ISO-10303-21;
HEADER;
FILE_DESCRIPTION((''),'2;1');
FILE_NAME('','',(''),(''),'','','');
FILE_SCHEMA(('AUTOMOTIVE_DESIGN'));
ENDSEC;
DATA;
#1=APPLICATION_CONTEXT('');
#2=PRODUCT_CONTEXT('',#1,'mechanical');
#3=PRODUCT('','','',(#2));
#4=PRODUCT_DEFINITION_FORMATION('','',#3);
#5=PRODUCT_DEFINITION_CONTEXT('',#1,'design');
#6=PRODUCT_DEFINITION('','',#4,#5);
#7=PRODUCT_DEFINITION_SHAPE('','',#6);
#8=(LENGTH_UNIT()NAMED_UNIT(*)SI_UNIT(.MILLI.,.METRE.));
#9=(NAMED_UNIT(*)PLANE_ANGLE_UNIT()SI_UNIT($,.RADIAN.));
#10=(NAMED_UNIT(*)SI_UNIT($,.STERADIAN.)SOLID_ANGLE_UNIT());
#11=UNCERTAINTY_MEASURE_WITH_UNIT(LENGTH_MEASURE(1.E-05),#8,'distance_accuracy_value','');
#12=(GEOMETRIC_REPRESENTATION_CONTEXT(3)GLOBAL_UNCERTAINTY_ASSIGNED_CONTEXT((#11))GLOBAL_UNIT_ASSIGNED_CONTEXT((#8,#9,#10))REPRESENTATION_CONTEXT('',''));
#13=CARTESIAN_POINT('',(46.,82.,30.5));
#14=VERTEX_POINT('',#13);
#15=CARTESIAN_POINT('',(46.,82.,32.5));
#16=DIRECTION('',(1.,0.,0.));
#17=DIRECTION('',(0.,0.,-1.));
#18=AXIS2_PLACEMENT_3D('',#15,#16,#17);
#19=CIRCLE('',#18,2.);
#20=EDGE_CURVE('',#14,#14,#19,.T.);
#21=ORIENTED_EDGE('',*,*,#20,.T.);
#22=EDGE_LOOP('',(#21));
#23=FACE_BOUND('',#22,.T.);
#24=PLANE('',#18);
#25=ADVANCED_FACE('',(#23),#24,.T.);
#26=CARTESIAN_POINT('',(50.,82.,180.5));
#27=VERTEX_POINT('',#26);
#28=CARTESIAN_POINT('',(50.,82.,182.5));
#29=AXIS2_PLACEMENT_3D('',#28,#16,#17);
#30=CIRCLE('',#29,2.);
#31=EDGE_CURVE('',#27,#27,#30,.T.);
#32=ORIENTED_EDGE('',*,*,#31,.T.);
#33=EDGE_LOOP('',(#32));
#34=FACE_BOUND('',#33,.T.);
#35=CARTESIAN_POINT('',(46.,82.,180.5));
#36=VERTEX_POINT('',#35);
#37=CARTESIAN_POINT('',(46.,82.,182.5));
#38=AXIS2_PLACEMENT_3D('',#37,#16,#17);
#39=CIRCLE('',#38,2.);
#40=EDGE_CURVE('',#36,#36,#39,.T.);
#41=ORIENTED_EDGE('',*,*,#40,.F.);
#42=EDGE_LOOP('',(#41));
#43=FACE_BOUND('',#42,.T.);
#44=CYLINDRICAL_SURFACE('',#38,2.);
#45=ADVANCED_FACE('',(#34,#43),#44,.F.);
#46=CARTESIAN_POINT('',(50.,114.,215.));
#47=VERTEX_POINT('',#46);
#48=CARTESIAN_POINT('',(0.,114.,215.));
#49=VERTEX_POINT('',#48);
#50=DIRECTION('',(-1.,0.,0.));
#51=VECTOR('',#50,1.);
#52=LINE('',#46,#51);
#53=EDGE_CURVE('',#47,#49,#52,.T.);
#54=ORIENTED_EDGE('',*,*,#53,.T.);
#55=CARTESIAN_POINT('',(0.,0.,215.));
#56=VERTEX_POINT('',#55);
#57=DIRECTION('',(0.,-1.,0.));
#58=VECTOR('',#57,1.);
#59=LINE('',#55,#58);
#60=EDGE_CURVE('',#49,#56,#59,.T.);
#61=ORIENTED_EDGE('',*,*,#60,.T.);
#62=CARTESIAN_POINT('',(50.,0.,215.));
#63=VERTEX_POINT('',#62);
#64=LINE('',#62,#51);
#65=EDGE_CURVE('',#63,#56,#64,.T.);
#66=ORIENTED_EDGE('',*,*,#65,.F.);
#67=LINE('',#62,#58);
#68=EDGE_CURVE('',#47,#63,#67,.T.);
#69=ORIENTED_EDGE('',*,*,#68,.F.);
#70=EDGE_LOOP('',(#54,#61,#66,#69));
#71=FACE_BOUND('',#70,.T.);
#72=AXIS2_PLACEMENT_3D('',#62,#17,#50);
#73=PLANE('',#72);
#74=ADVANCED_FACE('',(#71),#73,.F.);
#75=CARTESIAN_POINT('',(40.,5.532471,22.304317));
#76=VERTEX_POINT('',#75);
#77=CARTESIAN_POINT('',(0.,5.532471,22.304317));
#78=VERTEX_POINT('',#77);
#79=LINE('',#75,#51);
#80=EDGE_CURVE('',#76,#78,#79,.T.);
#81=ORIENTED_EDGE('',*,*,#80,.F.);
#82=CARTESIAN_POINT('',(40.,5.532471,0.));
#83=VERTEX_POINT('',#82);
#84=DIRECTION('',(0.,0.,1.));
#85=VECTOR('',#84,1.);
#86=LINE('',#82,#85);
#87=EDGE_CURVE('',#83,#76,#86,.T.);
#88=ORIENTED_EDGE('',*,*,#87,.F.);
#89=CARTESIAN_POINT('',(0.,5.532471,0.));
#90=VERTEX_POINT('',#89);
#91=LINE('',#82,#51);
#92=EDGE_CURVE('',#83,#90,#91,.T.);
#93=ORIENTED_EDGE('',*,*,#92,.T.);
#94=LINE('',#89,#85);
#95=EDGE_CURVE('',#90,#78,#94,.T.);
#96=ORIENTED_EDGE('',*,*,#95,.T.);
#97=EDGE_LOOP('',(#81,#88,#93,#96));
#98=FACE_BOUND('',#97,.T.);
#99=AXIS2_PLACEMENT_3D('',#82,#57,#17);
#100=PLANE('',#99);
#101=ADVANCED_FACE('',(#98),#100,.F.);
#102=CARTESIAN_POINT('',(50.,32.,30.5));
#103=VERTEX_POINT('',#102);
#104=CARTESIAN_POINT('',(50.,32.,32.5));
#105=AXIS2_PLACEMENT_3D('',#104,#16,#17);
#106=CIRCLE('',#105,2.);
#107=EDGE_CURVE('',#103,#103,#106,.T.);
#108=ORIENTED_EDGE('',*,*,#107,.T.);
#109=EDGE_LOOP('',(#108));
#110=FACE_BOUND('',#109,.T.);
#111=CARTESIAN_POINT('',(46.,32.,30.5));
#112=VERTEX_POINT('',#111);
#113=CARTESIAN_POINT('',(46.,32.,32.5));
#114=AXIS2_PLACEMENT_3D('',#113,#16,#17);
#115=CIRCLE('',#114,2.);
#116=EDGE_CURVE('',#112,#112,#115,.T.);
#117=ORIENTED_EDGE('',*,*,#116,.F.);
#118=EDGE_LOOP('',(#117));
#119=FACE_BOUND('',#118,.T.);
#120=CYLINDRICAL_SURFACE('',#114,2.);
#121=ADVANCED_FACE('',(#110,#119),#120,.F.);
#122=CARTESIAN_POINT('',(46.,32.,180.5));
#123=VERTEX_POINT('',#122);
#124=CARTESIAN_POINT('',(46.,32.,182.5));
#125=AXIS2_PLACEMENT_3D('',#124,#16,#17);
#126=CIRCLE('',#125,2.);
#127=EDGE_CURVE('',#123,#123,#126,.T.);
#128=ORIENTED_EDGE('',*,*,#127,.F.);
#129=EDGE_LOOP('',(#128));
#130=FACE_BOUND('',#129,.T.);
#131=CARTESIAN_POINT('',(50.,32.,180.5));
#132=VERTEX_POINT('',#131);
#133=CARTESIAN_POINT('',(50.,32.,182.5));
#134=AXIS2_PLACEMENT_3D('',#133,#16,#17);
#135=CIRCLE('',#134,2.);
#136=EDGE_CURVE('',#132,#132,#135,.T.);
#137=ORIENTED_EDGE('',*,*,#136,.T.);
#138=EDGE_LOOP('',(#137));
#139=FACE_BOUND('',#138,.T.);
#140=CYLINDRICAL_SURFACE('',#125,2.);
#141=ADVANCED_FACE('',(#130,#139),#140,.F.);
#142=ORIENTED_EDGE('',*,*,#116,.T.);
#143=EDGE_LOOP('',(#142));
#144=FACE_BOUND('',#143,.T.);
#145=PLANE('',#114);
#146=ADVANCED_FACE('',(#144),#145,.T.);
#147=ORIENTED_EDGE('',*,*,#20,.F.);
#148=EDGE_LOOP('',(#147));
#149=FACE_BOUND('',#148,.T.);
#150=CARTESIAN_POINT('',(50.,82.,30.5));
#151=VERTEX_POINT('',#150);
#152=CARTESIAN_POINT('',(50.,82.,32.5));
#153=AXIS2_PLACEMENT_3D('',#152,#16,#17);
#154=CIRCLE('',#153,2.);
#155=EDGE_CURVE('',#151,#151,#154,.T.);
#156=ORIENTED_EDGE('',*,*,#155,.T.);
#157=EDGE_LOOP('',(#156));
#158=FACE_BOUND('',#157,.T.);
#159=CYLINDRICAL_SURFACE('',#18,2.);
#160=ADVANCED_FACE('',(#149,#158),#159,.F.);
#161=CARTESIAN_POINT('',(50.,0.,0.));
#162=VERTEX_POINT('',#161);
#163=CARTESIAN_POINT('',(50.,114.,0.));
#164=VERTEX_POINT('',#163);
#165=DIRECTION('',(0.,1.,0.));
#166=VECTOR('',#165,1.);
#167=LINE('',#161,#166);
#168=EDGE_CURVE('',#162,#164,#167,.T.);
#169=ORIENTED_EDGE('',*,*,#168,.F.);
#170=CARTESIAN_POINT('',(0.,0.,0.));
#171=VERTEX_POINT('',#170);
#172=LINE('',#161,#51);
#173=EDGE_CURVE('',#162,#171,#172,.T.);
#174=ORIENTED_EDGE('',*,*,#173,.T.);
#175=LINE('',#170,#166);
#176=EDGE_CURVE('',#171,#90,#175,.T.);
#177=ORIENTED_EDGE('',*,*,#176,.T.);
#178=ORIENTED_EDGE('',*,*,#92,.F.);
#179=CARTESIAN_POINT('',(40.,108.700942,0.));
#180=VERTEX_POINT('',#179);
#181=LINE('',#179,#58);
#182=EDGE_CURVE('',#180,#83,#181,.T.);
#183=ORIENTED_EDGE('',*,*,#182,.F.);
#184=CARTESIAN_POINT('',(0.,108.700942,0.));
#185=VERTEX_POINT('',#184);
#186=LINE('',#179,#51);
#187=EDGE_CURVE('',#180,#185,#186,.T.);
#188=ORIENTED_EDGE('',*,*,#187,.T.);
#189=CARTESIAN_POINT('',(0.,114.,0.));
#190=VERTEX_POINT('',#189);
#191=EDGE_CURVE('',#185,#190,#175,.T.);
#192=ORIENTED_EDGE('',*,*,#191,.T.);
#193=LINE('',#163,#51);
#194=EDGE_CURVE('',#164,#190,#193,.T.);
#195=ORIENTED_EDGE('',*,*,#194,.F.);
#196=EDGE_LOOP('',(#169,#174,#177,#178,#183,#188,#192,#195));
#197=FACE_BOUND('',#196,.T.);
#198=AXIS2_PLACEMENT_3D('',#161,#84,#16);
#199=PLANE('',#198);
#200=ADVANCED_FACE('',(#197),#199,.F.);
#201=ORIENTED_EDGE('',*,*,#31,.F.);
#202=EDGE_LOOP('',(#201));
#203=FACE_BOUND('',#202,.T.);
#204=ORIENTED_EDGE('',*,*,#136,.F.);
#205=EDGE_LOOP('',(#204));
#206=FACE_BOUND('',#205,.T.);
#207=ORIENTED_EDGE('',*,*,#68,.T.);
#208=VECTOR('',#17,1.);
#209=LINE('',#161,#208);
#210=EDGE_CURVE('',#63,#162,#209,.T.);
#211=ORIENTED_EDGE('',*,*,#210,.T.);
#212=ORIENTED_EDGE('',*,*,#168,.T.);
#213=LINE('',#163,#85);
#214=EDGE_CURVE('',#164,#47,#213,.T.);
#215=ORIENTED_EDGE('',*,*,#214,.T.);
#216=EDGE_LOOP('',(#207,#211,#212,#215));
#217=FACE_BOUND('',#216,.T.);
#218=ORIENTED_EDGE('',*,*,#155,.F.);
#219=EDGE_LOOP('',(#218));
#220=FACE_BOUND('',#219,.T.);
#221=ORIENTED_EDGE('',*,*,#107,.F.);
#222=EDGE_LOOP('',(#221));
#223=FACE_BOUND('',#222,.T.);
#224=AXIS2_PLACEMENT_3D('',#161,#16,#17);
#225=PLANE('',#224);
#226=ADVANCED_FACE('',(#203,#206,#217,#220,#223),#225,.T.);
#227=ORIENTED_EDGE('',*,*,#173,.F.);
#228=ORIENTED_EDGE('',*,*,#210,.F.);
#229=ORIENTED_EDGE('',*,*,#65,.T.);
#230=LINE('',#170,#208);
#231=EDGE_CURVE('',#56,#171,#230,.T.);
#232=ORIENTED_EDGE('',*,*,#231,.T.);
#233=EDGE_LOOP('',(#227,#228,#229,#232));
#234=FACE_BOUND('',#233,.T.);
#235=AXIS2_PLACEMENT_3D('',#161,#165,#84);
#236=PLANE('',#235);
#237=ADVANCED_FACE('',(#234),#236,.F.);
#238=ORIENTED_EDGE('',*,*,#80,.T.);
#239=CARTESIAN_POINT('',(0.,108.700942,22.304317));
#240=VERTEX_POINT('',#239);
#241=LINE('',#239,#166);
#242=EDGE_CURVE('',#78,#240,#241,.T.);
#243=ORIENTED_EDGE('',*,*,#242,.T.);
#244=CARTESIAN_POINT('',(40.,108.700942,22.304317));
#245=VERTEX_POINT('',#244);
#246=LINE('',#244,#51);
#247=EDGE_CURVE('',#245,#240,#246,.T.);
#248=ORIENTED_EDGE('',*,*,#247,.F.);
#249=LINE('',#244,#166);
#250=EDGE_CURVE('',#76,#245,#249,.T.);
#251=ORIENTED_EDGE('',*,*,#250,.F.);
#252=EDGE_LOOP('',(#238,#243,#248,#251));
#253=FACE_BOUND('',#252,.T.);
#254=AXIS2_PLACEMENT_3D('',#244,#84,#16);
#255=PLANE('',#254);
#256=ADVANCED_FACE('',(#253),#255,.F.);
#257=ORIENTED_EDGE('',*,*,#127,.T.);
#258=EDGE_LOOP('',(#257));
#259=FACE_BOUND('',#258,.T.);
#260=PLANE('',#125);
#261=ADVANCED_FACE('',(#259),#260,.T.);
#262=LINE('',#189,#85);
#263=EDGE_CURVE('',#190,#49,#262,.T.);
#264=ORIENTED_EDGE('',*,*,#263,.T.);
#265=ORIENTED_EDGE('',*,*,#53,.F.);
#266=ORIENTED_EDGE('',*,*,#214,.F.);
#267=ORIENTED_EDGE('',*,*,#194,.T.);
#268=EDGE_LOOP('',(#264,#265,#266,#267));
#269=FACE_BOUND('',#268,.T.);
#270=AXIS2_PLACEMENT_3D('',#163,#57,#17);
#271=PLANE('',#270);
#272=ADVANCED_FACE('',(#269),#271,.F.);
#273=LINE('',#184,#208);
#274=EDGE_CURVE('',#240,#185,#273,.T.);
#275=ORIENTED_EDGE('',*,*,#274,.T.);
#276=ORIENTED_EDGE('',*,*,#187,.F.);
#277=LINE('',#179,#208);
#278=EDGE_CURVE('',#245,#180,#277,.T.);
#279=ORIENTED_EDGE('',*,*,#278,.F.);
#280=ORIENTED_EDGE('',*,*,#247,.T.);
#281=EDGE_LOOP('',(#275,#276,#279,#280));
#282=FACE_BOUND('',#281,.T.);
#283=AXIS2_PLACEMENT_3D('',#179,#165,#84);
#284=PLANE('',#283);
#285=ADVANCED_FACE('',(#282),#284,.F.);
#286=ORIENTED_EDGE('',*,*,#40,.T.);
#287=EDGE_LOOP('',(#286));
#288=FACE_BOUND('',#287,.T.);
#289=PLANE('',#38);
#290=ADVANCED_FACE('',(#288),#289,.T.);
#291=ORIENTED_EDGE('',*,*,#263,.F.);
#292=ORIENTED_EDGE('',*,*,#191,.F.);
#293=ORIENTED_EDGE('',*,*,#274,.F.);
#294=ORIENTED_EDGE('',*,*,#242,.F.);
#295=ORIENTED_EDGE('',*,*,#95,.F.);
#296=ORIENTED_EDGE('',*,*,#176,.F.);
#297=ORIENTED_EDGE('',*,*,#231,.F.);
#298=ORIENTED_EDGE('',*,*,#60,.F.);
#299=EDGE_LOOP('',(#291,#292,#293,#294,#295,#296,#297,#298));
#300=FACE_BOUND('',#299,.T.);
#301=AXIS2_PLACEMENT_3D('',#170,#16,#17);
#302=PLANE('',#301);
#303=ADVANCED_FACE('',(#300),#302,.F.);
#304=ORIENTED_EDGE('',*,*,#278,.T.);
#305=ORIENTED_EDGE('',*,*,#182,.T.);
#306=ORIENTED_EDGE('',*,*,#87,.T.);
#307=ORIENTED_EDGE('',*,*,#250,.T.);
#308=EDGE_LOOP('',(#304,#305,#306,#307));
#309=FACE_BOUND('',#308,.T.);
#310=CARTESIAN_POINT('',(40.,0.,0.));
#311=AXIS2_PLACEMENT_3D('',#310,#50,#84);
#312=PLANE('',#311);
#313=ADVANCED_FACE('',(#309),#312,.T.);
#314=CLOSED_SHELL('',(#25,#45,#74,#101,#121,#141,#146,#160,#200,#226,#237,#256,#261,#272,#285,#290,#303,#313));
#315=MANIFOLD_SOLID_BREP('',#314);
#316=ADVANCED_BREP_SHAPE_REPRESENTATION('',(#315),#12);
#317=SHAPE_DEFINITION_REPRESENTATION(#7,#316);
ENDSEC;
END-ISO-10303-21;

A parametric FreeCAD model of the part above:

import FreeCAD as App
import Part
import Sketcher


def add_polygon(sketch, points):
    """Adds a closed chain of lines whose ends are joined by coincident constraints."""
    first, n = sketch.GeometryCount, len(points)
    for a, b in zip(points, points[1:] + points[:1]):
        sketch.addGeometry(Part.LineSegment(App.Vector(*a, 0), App.Vector(*b, 0)), False)
    for i in range(n):
        sketch.addConstraint(Sketcher.Constraint("Coincident", first + i, 2, first + (i + 1) % n, 1))

doc = App.newDocument("Part")
params = doc.addObject("Spreadsheet::Sheet", "Params")
for row, (alias, value) in enumerate([
    ("sketch1_width", "114 mm"),
    ("sketch1_height", "215 mm"),
    ("pad1_length", "50 mm"),
    ("pocket1_length", "40 mm"),
    ("sketch3_diameter", "4 mm"),
    ("pocket2_length", "4 mm"),
], start=1):
    params.set(f"A{row}", alias)
    params.set(f"B{row}", "=" + value)
    params.setAlias(f"B{row}", alias)

body = doc.addObject("PartDesign::Body", "Body")

# Sketch on YZ plane
sketch1 = body.newObject("Sketcher::SketchObject", "Sketch")
sketch1.AttachmentSupport = (doc.getObject("YZ_Plane"), [""])
sketch1.MapMode = "FlatFace"
add_polygon(sketch1, [(114, 215), (0, 215), (0, 0), (114, 0)])  # lines 0-3
sketch1.addConstraint([
    Sketcher.Constraint("Horizontal", 0),
    Sketcher.Constraint("Vertical", 1),
    Sketcher.Constraint("Horizontal", 2),
    Sketcher.Constraint("Vertical", 3),
    Sketcher.Constraint("Coincident", 1, 2, -1, 1),
    Sketcher.Constraint("DistanceX", 0, 2, 0, 1, 114.0),
    Sketcher.Constraint("DistanceY", 1, 2, 1, 1, 215.0),
])
sketch1.setExpression("Constraints[9]", "Params.sketch1_width")
sketch1.setExpression("Constraints[10]", "Params.sketch1_height")
pad1 = body.newObject("PartDesign::Pad", "Pad")
pad1.Profile = sketch1
pad1.setExpression("Length", "Params.pad1_length")

# Sketch on YZ plane
sketch2 = body.newObject("Sketcher::SketchObject", "Sketch001")
sketch2.AttachmentSupport = (doc.getObject("YZ_Plane"), [""])
sketch2.MapMode = "FlatFace"
add_polygon(sketch2, [(108.700942, 0), (5.532471, 0), (5.532471, 22.304317), (108.700942, 22.304317)])  # lines 0-3
sketch2.addConstraint([
    Sketcher.Constraint("Horizontal", 0),
    Sketcher.Constraint("Vertical", 1),
    Sketcher.Constraint("Horizontal", 2),
    Sketcher.Constraint("Vertical", 3),
    Sketcher.Constraint("PointOnObject", 0, 2, -1),
    Sketcher.Constraint("DistanceX", 0, 2, 0, 1, 103.168471),
    Sketcher.Constraint("DistanceY", 1, 1, 1, 2, 22.304317),
    Sketcher.Constraint("DistanceX", -1, 1, 0, 2, 5.532471),
])
pocket1 = body.newObject("PartDesign::Pocket", "Pocket")
pocket1.Profile = sketch2
pocket1.setExpression("Length", "Params.pocket1_length")
pocket1.Reversed = True

# Sketch on YZ plane
sketch3 = body.newObject("Sketcher::SketchObject", "Sketch002")
sketch3.AttachmentSupport = (doc.getObject("YZ_Plane"), [""])
sketch3.MapMode = "FlatFace"
sketch3.AttachmentOffset = App.Placement(App.Vector(0, 0, 50), App.Rotation())
sketch3.addGeometry([
    Part.Circle(App.Vector(82, 182.5, 0), App.Vector(0, 0, 1), 2),
    Part.Circle(App.Vector(82, 32.5, 0), App.Vector(0, 0, 1), 2),
    Part.Circle(App.Vector(32, 32.5, 0), App.Vector(0, 0, 1), 2),
    Part.Circle(App.Vector(32, 182.5, 0), App.Vector(0, 0, 1), 2),
], False)
sketch3.addConstraint([
    Sketcher.Constraint("Equal", 0, 1),
    Sketcher.Constraint("Equal", 1, 2),
    Sketcher.Constraint("Equal", 2, 3),
    Sketcher.Constraint("Horizontal", 1, 3, 2, 3),
    Sketcher.Constraint("Horizontal", 0, 3, 3, 3),
    Sketcher.Constraint("Vertical", 0, 3, 1, 3),
    Sketcher.Constraint("Vertical", 2, 3, 3, 3),
    Sketcher.Constraint("Diameter", 0, 4.0),
    Sketcher.Constraint("DistanceX", -1, 1, 0, 3, 82.0),
    Sketcher.Constraint("DistanceX", -1, 1, 2, 3, 32.0),
    Sketcher.Constraint("DistanceY", 1, 3, 0, 3, 150.0),
    Sketcher.Constraint("DistanceY", -1, 1, 0, 3, 182.5),
])
sketch3.setExpression("Constraints[7]", "Params.sketch3_diameter")
pocket2 = body.newObject("PartDesign::Pocket", "Pocket001")
pocket2.Profile = sketch3
pocket2.setExpression("Length", "Params.pocket2_length")

doc.recompute()
